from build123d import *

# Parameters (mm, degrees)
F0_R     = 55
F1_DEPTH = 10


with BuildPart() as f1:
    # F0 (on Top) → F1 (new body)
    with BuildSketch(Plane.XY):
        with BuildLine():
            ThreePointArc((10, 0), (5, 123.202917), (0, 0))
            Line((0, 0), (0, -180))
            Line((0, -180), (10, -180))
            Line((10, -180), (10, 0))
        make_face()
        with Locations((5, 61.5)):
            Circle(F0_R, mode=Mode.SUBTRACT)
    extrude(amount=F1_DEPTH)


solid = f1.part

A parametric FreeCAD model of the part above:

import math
import FreeCAD as App
import Part
import Sketcher

V = App.Vector

doc = App.newDocument("Part")
body = doc.addObject("PartDesign::Body", "Body")

sketch1 = body.newObject("Sketcher::SketchObject", "Sketch")
sketch1.AttachmentSupport = (doc.getObject("XY_Plane"), [""])
sketch1.MapMode = "FlatFace"
sketch1.addGeometry([
    Part.ArcOfCircle(Part.Circle(V(5, 61.5, 0), V(0, 0, 1), 61.702917), math.radians(-85.352029), math.radians(265.352029)),
    Part.LineSegment(V(0, 0, 0), V(0, -180, 0)),
    Part.LineSegment(V(0, -180, 0), V(10, -180, 0)),
    Part.LineSegment(V(10, -180, 0), V(10, 0, 0)),
    Part.Circle(V(5, 61.5, 0), V(0, 0, 1), 55),
], False)
sketch1.addConstraint([
    Sketcher.Constraint("Coincident", 0, 2, 1, 1),
    Sketcher.Constraint("Coincident", 1, 2, 2, 1),
    Sketcher.Constraint("Coincident", 2, 2, 3, 1),
    Sketcher.Constraint("Coincident", 3, 2, 0, 1),
    Sketcher.Constraint("Vertical", 1),
    Sketcher.Constraint("Horizontal", 2),
    Sketcher.Constraint("Vertical", 3),
    Sketcher.Constraint("Coincident", 0, 2, -1, 1),
    Sketcher.Constraint("Coincident", 4, 3, 0, 3),
    Sketcher.Constraint("PointOnObject", 3, 2, -1),
    Sketcher.Constraint("Diameter", 4, 110.0),
    Sketcher.Constraint("DistanceX", 2, 1, 2, 2, 10.0),
    Sketcher.Constraint("DistanceY", 1, 2, 1, 1, 180.0),
    Sketcher.Constraint("DistanceY", -1, 1, 0, 3, 61.5),
])
pad1 = body.newObject("PartDesign::Pad", "Pad")
pad1.Profile = sketch1
pad1.Length = 10

doc.recompute()
